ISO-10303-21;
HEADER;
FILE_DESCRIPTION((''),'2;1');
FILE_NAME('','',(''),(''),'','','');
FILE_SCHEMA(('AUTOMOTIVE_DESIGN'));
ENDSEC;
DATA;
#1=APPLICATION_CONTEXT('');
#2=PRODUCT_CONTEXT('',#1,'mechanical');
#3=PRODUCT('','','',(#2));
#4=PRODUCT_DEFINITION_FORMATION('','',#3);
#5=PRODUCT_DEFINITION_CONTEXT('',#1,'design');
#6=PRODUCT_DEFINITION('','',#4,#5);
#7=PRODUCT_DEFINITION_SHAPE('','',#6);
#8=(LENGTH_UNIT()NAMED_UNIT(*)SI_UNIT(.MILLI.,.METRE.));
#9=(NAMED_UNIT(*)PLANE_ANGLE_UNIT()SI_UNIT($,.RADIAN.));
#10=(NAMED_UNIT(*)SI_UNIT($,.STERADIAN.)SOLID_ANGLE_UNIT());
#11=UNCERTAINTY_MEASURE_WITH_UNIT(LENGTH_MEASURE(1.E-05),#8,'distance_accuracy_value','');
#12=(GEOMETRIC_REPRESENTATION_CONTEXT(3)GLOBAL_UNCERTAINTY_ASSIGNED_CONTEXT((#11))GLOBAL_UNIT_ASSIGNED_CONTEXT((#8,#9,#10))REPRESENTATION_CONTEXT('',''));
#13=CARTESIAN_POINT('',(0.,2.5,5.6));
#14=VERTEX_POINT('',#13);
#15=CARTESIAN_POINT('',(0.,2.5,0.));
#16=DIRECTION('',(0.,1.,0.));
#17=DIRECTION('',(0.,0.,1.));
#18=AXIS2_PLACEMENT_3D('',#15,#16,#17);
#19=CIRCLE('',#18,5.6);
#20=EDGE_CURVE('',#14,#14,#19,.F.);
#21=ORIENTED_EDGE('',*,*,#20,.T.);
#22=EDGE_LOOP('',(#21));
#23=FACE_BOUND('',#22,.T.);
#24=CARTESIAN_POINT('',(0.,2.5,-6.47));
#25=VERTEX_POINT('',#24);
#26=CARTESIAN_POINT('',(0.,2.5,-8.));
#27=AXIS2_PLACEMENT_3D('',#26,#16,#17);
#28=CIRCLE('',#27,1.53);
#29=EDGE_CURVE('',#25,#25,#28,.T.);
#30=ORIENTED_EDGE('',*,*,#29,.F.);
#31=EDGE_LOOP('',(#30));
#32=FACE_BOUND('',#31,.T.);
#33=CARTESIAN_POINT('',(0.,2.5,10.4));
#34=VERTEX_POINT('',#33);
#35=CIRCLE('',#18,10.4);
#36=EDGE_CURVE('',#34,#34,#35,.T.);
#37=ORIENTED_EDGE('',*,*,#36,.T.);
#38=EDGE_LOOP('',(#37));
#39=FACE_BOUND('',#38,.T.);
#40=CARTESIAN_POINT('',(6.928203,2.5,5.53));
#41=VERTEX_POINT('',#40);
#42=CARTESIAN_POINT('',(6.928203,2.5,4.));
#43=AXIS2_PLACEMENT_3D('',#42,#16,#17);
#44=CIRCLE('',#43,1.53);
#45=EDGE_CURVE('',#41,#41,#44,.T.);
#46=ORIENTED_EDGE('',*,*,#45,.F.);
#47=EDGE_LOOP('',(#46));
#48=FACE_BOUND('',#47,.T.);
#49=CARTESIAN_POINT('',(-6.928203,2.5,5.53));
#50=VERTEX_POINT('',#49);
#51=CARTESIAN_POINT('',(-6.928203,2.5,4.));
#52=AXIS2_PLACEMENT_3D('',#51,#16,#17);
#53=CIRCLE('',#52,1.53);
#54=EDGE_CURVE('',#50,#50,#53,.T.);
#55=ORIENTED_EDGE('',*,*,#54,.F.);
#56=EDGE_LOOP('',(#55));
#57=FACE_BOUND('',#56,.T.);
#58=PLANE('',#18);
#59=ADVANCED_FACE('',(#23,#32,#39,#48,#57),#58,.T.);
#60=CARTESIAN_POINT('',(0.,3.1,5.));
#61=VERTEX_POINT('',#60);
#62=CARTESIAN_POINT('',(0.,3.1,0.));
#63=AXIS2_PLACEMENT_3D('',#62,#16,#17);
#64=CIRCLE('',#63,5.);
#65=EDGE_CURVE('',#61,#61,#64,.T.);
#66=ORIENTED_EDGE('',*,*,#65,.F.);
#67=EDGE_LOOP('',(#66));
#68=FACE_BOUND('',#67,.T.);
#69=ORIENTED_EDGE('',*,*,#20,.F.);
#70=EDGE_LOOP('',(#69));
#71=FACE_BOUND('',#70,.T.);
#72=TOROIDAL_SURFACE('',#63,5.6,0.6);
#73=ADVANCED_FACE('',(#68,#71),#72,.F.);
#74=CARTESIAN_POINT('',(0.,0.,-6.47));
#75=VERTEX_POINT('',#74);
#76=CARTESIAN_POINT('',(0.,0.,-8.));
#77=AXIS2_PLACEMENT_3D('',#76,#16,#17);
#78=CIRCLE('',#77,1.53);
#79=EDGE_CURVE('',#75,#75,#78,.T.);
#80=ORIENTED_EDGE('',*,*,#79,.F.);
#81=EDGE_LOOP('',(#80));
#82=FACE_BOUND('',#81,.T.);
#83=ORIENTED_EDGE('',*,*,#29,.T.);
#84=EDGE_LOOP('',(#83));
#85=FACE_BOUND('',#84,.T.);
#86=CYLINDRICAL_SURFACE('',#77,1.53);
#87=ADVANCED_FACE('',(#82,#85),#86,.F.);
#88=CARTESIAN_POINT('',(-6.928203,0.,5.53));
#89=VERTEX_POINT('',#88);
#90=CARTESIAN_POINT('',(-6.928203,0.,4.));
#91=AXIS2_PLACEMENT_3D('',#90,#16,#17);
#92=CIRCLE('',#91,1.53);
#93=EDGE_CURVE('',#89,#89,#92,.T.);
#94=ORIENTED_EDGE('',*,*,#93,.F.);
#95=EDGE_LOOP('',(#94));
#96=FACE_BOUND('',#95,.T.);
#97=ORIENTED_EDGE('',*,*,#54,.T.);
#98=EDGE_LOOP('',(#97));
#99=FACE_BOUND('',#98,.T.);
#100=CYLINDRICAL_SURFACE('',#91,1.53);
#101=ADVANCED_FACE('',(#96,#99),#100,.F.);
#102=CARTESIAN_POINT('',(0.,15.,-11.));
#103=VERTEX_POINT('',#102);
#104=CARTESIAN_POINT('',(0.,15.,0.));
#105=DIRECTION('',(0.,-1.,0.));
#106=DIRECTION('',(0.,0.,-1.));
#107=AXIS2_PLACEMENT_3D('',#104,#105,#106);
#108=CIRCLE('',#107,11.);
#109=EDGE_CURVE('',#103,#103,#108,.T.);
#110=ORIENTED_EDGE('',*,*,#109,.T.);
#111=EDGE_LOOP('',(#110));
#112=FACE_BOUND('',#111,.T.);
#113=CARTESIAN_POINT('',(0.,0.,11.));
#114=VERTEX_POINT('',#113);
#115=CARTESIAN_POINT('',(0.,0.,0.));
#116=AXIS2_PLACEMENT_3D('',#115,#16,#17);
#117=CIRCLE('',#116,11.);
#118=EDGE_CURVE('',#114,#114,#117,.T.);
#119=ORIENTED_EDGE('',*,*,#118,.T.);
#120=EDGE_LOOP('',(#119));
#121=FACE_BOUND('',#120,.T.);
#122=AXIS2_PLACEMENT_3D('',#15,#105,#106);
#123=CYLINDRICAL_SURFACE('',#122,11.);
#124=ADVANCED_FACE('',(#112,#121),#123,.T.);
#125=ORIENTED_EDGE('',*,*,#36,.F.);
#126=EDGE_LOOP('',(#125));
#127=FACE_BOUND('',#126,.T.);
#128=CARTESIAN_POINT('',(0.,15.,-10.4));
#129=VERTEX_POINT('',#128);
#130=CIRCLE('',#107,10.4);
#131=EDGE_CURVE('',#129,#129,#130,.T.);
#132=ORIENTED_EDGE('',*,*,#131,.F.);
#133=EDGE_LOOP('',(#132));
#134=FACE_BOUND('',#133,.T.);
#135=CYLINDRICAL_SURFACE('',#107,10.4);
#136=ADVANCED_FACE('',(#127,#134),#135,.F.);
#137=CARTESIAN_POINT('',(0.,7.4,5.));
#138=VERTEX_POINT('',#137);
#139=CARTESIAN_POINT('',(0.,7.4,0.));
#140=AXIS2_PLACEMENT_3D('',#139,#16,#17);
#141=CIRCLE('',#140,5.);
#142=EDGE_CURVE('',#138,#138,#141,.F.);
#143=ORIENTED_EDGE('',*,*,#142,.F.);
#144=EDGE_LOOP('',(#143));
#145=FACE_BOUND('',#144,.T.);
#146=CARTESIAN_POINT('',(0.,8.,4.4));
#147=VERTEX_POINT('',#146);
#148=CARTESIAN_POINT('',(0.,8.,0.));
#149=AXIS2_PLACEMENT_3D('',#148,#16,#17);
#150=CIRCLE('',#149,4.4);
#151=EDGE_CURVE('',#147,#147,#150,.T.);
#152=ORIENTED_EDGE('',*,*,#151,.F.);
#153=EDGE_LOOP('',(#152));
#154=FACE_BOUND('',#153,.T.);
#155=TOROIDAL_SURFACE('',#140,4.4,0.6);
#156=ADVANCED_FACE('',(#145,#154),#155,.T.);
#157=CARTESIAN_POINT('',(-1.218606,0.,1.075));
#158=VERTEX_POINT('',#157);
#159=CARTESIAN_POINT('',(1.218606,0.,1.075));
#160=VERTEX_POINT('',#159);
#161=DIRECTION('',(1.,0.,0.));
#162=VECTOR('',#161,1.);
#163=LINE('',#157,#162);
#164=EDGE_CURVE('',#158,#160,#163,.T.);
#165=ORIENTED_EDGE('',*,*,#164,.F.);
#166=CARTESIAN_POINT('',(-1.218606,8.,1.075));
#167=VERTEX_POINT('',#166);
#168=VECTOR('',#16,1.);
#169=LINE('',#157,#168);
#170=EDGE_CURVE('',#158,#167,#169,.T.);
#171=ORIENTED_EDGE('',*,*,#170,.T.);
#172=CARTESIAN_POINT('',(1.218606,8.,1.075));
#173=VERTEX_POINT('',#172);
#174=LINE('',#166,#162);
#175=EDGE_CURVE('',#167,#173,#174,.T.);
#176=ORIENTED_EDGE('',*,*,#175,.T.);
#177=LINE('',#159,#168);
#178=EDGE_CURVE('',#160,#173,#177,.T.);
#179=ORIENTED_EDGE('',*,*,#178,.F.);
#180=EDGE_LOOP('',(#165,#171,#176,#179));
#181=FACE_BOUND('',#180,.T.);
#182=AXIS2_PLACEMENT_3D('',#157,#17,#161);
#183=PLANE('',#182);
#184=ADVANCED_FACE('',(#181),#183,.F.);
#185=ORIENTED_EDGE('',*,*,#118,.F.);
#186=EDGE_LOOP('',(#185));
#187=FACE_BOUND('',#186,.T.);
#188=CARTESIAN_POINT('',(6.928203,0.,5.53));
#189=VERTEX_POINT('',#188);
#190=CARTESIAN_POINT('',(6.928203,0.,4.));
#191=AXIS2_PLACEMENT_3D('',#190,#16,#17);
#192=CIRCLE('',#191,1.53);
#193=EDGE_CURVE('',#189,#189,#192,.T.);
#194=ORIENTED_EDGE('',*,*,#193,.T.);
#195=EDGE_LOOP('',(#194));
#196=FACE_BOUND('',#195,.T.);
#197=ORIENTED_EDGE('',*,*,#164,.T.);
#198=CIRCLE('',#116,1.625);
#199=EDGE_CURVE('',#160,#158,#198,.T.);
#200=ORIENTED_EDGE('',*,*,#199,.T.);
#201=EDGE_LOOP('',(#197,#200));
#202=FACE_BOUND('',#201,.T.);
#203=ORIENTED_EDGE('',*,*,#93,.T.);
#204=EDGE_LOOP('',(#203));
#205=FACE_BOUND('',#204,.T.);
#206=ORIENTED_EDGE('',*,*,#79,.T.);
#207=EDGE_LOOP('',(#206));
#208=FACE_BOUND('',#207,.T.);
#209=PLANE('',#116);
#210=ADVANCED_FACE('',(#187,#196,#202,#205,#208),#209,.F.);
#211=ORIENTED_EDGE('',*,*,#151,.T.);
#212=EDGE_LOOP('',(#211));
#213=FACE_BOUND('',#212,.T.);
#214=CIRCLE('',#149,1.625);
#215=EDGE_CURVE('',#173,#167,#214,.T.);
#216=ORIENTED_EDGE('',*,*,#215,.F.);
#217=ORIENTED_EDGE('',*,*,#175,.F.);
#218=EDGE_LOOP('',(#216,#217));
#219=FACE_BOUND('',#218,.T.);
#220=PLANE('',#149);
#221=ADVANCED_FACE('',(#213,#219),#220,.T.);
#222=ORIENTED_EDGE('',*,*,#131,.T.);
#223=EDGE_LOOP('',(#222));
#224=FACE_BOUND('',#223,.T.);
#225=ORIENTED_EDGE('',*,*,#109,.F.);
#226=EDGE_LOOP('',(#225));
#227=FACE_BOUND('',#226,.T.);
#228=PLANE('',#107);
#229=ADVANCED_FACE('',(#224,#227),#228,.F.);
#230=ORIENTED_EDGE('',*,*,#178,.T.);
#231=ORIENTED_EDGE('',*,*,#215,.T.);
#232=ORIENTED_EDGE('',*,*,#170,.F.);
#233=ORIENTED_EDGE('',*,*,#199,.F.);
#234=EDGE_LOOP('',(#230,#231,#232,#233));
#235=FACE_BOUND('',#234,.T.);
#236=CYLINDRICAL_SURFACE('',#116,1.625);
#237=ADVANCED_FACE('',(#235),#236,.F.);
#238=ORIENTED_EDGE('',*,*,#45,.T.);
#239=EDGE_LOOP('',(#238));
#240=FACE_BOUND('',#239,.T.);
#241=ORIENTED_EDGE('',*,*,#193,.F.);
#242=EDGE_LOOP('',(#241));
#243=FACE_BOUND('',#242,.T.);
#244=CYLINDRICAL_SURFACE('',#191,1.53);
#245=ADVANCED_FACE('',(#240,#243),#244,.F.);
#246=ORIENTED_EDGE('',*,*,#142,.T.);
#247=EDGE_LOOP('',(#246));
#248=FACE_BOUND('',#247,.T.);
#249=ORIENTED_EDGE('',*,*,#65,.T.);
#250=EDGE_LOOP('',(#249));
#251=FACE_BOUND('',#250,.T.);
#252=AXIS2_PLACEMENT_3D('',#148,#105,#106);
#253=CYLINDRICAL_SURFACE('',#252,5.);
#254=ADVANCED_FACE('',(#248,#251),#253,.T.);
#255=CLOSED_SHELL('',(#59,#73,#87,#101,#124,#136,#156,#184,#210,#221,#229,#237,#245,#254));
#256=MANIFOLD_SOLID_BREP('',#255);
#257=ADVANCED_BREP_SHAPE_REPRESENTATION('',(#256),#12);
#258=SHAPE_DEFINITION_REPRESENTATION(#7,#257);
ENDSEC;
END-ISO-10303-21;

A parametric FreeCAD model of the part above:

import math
import FreeCAD as App
import Part
import Sketcher

V = App.Vector


def edges_at(feature, points):
    """Names of the edges that pass closest to the given points."""
    edges = feature.Shape.Edges
    near = lambda p: min(range(len(edges)), key=lambda i: edges[i].distToShape(Part.Vertex(*p))[0])
    return sorted({f"Edge{near(p) + 1}" for p in points})

doc = App.newDocument("Part")
body = doc.addObject("PartDesign::Body", "Body")

# Sketch on XZ plane
sketch1 = body.newObject("Sketcher::SketchObject", "Sketch")
sketch1.AttachmentSupport = (doc.getObject("XZ_Plane"), [""])
sketch1.MapMode = "FlatFace"
sketch1.addGeometry(Part.Circle(V(0, 0, 0), V(0, 0, 1), 11), False)
sketch1.addConstraint(Sketcher.Constraint("Coincident", 0, 3, -1, 1))
sketch1.addConstraint(Sketcher.Constraint("Diameter", 0, 22.0))
pad1 = body.newObject("PartDesign::Pad", "Pad")
pad1.Profile = sketch1
pad1.Length = 2.5
pad1.Reversed = True

# Sketch on XZ plane
sketch2 = body.newObject("Sketcher::SketchObject", "Sketch001")
sketch2.AttachmentSupport = (doc.getObject("XZ_Plane"), [""])
sketch2.MapMode = "FlatFace"
sketch2.AttachmentOffset = App.Placement(V(0, 0, -2.5), App.Rotation())
sketch2.addGeometry(Part.Circle(V(0, 0, 0), V(0, 0, 1), 5), False)
sketch2.addConstraint(Sketcher.Constraint("Coincident", 0, 3, -1, 1))
sketch2.addConstraint(Sketcher.Constraint("Diameter", 0, 10.0))
pad2 = body.newObject("PartDesign::Pad", "Pad001")
pad2.Profile = sketch2
pad2.Length = 5.5
pad2.Reversed = True

# Sketch on XZ plane
sketch3 = body.newObject("Sketcher::SketchObject", "Sketch002")
sketch3.AttachmentSupport = (doc.getObject("XZ_Plane"), [""])
sketch3.MapMode = "FlatFace"
sketch3.AttachmentOffset = App.Placement(V(0, 0, -2.5), App.Rotation())
sketch3.addGeometry(Part.Circle(V(0, -8, 0), V(0, 0, 1), 1.5), False)
sketch3.addGeometry(Part.Circle(V(6.9, 4, 0), V(0, 0, 1), 1.5), False)
sketch3.addGeometry(Part.Circle(V(-6.9, 4, 0), V(0, 0, 1), 1.5), False)
sketch3.addConstraint(Sketcher.Constraint("Equal", 0, 1))
sketch3.addConstraint(Sketcher.Constraint("Equal", 1, 2))
sketch3.addConstraint(Sketcher.Constraint("Symmetric", 1, 3, 2, 3, -2))
sketch3.addConstraint(Sketcher.Constraint("PointOnObject", 0, 3, -2))
sketch3.addConstraint(Sketcher.Constraint("Diameter", 0, 3.06))
sketch3.addConstraint(Sketcher.Constraint("DistanceY", 0, 3, -1, 1, 8.0))
sketch3.addConstraint(Sketcher.Constraint("DistanceY", -1, 1, 1, 3, 4.0))
sketch3.addConstraint(Sketcher.Constraint("DistanceX", -1, 1, 1, 3, 6.928203))
pocket1 = body.newObject("PartDesign::Pocket", "Pocket")
pocket1.Profile = sketch3
pocket1.Type = "ThroughAll"
pocket1.Reversed = True

# Sketch on XZ plane
sketch4 = body.newObject("Sketcher::SketchObject", "Sketch003")
sketch4.AttachmentSupport = (doc.getObject("XZ_Plane"), [""])
sketch4.MapMode = "FlatFace"
sketch4.AttachmentOffset = App.Placement(V(0, 0, -8), App.Rotation())
sketch4.addGeometry(Part.LineSegment(V(-1.2, 1.1, 0), V(1.2, 1.1, 0)), False)
sketch4.addGeometry(Part.ArcOfCircle(Part.Circle(V(0, 0, 0), V(0, 0, 1), 1.6), math.radians(139), math.radians(401)), False)
sketch4.addConstraint(Sketcher.Constraint("Coincident", 0, 1, 1, 1))
sketch4.addConstraint(Sketcher.Constraint("Coincident", 1, 2, 0, 2))
sketch4.addConstraint(Sketcher.Constraint("Horizontal", 0))
sketch4.addConstraint(Sketcher.Constraint("Coincident", 1, 3, -1, 1))
sketch4.addConstraint(Sketcher.Constraint("Radius", 1, 1.625))
sketch4.addConstraint(Sketcher.Constraint("DistanceY", -1, 1, 0, 1, 1.075))
pocket2 = body.newObject("PartDesign::Pocket", "Pocket001")
pocket2.Profile = sketch4
pocket2.Type = "ThroughAll"
pocket2.Reversed = True
doc.recompute()

fillet = body.newObject("PartDesign::Fillet", "Fillet")
fillet.Base = (pocket2, edges_at(pocket2, [(0, 2.5, -5), (0, 8, -5)]))
fillet.Radius = 0.6

# Sketch on XZ plane
sketch5 = body.newObject("Sketcher::SketchObject", "Sketch004")
sketch5.AttachmentSupport = (doc.getObject("XZ_Plane"), [""])
sketch5.MapMode = "FlatFace"
sketch5.addGeometry(Part.Circle(V(0, 0, 0), V(0, 0, 1), 11), False)
sketch5.addGeometry(Part.Circle(V(0, 0, 0), V(0, 0, 1), 10), False)
sketch5.addConstraint(Sketcher.Constraint("Coincident", 0, 3, -1, 1))
sketch5.addConstraint(Sketcher.Constraint("Coincident", 1, 3, -1, 1))
sketch5.addConstraint(Sketcher.Constraint("Diameter", 0, 22.0))
sketch5.addConstraint(Sketcher.Constraint("Diameter", 1, 20.8))
pad3 = body.newObject("PartDesign::Pad", "Pad002")
pad3.Profile = sketch5
pad3.Length = 15
pad3.Reversed = True

doc.recompute()
